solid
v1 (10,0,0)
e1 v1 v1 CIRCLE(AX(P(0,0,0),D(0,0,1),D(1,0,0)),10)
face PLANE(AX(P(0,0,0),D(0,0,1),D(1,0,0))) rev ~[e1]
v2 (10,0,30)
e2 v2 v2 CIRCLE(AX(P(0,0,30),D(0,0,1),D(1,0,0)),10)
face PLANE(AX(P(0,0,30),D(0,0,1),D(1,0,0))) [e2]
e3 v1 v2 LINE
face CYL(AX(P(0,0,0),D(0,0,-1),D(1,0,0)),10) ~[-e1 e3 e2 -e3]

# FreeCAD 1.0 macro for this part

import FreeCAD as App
import Part
import Sketcher

V = App.Vector

doc = App.newDocument("Part")
body = doc.addObject("PartDesign::Body", "Body")

# Sketch on XY plane
sketch1 = doc.addObject("Sketcher::SketchObject", "Sketch")
body.addObject(sketch1)
sketch1.AttachmentSupport = (doc.XY_Plane, [""])
sketch1.MapMode = "FlatFace"
sketch1.addGeometry(Part.Circle(V(0, 0, 0), V(0, 0, 1), 10), False)
sketch1.addConstraint([
    Sketcher.Constraint("Coincident", 0, 3, -1, 1),
    Sketcher.Constraint("Diameter", 0, 20.0),
])
pad1 = doc.addObject("PartDesign::Pad", "Pad")
body.addObject(pad1)
pad1.Profile = sketch1
pad1.Length = 30

doc.recompute()
